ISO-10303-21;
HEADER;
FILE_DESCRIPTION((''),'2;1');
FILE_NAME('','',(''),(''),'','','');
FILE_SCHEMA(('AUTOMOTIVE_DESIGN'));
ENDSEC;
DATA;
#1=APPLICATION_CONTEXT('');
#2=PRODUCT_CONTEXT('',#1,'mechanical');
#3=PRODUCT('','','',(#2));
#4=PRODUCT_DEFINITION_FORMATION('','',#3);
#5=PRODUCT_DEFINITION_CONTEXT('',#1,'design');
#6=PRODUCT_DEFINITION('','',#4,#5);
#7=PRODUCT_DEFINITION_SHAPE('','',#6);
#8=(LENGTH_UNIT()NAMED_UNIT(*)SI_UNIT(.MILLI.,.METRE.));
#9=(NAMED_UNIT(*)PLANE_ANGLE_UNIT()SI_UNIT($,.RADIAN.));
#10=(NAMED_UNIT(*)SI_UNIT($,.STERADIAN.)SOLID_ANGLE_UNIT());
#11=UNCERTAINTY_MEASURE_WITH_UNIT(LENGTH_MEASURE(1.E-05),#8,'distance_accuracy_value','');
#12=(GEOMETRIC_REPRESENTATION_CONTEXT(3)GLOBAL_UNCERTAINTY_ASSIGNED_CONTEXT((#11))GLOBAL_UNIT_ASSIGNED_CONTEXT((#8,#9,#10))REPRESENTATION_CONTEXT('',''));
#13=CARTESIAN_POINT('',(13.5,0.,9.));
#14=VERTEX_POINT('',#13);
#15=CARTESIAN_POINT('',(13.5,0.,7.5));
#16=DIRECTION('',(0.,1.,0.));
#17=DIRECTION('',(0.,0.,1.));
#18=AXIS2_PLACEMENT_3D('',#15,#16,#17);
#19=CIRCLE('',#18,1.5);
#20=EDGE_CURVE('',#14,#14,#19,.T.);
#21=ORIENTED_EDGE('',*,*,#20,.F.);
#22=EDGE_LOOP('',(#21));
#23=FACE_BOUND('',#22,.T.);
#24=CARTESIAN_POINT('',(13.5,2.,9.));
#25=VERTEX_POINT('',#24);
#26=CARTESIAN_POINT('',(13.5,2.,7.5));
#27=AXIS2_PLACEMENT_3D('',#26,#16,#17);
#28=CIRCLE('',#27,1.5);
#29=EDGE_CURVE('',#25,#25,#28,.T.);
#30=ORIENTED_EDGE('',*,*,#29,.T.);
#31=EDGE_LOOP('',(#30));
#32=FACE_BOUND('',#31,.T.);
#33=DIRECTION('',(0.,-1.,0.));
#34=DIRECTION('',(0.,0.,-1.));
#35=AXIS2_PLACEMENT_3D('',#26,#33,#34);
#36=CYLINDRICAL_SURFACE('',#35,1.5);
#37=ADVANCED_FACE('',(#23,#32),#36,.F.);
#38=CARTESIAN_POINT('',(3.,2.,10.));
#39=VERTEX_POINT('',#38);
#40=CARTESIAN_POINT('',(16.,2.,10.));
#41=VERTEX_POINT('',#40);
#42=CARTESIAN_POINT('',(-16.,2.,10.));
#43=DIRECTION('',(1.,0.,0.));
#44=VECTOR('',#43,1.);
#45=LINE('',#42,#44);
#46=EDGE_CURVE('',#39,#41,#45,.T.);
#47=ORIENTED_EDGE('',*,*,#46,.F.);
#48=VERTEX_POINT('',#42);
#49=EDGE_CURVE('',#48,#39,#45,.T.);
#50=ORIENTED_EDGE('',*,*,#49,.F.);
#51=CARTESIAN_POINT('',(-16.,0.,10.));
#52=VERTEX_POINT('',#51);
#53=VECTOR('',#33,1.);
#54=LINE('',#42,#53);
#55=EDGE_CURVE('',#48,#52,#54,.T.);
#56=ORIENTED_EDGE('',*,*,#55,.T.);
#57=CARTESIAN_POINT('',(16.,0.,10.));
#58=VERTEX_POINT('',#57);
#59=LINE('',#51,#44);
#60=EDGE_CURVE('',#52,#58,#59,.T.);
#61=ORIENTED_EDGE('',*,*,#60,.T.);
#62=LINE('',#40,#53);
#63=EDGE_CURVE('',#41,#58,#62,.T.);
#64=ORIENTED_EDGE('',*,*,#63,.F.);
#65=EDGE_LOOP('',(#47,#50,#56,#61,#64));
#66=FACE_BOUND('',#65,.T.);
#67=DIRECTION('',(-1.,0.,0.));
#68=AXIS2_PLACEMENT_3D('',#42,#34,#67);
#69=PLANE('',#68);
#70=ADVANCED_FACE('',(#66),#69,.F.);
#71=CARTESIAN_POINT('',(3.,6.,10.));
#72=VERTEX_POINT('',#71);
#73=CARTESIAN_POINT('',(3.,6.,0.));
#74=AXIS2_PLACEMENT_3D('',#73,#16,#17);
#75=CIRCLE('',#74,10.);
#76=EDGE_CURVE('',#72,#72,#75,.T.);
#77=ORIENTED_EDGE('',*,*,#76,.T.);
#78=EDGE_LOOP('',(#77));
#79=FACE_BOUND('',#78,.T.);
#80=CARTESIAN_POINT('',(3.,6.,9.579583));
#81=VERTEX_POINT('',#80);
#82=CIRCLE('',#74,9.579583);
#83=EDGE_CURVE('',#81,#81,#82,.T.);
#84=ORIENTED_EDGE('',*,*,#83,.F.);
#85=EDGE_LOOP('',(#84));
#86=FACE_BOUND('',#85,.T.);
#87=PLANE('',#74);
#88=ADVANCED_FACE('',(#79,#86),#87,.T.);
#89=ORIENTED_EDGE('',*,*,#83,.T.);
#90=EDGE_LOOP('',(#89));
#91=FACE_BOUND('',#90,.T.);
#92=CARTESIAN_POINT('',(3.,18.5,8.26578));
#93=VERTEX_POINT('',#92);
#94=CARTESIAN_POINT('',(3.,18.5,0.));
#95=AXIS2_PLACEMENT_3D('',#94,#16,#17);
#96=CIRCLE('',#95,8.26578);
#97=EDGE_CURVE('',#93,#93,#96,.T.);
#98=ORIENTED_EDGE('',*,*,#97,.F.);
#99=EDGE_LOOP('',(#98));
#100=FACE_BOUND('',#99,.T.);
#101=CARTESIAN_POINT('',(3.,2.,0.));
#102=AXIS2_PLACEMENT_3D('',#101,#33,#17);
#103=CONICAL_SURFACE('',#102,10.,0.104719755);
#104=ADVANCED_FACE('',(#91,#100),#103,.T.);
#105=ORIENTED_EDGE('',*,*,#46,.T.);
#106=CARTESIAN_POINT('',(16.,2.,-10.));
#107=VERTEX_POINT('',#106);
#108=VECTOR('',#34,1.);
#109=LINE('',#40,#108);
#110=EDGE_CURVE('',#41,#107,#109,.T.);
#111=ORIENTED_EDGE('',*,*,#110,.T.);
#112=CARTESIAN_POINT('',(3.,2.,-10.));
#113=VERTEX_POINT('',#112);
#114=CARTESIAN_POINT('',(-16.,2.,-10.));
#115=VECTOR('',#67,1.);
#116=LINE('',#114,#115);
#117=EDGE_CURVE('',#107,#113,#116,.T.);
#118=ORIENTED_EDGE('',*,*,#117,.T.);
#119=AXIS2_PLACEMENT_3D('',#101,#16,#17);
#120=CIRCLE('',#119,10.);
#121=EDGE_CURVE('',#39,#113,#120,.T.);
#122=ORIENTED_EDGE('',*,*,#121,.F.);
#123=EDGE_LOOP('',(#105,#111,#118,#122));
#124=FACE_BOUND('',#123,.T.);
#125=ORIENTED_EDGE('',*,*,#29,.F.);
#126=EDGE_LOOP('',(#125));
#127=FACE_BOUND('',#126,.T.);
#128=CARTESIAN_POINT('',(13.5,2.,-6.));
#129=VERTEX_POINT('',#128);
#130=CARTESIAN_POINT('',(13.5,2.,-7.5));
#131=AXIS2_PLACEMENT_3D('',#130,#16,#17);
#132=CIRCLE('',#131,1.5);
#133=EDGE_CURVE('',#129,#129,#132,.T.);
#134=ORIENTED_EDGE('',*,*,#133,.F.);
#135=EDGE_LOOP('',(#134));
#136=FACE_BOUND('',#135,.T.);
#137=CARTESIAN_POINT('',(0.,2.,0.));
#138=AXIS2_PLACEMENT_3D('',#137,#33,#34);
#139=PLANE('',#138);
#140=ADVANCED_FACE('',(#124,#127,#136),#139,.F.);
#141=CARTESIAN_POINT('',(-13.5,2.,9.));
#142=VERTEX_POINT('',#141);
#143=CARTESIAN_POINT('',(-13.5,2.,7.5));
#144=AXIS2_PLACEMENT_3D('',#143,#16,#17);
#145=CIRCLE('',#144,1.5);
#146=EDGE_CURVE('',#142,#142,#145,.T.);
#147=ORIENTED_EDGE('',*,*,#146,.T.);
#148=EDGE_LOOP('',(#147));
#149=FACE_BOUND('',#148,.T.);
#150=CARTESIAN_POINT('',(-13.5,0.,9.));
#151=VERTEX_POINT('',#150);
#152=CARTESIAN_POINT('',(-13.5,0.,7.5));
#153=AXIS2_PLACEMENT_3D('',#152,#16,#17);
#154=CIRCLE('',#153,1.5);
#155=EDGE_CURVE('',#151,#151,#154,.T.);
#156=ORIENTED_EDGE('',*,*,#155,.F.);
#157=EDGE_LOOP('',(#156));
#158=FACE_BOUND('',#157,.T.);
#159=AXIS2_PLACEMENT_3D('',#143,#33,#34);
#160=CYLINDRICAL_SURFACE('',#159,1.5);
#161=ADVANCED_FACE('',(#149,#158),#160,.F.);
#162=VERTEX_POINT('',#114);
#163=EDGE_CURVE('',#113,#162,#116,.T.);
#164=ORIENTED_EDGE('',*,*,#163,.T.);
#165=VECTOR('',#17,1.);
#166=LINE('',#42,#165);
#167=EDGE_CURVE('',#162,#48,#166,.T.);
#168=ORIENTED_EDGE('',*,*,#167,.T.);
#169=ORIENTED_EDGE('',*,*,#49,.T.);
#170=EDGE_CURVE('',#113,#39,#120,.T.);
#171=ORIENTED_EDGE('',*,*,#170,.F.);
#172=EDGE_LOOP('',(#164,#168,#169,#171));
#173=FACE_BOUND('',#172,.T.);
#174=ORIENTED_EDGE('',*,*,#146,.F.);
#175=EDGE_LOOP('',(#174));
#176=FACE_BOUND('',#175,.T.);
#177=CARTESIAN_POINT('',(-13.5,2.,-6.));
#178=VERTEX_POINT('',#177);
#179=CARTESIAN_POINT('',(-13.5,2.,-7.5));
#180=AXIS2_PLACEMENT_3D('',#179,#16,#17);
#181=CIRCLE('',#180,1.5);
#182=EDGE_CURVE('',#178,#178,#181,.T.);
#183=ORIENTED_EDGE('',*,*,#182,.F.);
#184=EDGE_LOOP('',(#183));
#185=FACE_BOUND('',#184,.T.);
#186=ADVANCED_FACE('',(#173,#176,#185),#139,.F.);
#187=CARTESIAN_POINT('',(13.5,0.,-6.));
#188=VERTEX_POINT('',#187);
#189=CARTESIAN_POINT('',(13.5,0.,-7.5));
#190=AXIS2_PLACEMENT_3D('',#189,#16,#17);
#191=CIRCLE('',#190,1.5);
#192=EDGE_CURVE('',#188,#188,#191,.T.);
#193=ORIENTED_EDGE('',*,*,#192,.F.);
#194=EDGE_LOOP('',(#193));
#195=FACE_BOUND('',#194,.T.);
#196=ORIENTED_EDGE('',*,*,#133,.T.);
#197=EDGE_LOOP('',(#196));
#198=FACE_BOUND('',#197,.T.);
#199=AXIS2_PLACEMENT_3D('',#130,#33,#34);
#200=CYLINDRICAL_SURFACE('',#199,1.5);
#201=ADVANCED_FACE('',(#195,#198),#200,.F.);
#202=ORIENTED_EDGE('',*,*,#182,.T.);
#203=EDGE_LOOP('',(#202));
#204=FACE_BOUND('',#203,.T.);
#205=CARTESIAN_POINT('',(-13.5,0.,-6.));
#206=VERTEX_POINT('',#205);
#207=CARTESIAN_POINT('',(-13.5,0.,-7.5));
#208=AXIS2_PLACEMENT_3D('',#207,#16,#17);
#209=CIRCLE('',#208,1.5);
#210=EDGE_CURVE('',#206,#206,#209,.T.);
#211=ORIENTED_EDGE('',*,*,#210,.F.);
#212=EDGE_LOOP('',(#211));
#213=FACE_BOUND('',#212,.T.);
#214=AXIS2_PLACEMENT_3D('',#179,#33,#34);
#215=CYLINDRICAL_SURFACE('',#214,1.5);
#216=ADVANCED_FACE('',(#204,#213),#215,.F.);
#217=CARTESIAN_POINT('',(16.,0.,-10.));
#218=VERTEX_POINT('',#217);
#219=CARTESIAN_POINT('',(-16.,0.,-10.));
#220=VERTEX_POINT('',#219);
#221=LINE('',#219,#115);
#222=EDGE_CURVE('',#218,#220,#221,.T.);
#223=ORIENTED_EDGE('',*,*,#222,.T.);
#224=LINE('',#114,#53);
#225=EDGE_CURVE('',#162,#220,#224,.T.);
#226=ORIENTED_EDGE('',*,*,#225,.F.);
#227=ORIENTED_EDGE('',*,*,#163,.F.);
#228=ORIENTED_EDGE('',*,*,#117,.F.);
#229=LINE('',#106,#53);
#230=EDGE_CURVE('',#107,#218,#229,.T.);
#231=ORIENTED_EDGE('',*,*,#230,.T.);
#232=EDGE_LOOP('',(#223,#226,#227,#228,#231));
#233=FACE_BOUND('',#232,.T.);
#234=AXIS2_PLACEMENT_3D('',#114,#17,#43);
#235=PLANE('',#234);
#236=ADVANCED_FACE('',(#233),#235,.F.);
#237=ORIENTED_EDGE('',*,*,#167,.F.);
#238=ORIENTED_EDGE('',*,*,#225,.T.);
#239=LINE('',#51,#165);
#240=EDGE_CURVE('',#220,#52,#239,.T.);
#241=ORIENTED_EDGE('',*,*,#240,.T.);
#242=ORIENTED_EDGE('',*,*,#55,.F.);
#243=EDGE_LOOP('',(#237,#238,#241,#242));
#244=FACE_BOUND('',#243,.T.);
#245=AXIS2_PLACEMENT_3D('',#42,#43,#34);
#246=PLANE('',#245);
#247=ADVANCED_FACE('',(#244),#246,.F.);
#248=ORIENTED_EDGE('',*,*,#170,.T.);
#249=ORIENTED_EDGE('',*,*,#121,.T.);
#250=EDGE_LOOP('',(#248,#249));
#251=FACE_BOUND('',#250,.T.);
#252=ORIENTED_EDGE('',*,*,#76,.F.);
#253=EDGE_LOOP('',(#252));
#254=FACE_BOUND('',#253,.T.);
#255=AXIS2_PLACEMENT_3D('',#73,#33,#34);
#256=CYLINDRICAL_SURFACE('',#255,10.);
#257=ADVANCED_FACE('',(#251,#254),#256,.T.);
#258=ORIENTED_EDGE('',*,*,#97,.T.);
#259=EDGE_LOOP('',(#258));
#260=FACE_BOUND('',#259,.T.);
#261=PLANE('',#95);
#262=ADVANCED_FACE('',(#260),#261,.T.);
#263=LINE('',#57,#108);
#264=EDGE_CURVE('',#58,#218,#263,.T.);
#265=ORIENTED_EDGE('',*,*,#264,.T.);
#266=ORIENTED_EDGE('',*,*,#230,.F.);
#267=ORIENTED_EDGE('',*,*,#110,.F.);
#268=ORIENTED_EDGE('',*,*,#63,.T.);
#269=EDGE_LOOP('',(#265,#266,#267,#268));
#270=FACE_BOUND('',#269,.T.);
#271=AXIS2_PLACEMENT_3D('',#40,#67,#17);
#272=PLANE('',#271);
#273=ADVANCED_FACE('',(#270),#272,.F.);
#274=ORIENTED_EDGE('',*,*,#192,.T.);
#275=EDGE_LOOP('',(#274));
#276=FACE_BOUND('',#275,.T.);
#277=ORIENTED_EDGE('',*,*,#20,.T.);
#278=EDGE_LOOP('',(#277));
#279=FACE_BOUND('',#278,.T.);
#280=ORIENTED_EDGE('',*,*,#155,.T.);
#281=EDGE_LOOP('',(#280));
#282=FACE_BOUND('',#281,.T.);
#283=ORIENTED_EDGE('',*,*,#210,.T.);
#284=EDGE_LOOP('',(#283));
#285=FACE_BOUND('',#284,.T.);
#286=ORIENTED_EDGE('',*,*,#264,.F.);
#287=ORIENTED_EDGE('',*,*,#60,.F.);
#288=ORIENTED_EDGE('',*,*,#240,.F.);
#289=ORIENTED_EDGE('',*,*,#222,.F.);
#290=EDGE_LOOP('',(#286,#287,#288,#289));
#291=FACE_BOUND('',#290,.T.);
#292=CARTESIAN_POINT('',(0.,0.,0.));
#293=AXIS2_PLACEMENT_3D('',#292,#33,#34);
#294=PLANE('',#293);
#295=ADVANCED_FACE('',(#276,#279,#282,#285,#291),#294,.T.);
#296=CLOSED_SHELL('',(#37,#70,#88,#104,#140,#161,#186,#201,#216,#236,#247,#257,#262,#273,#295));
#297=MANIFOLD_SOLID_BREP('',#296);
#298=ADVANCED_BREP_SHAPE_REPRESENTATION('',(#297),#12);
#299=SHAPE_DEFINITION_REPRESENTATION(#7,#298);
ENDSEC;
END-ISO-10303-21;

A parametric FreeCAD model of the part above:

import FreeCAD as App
import Part
import Sketcher

V = App.Vector


def add_polygon(sketch, points):
    """Adds a closed chain of lines whose ends are joined by coincident constraints."""
    first, n = sketch.GeometryCount, len(points)
    for a, b in zip(points, points[1:] + points[:1]):
        sketch.addGeometry(Part.LineSegment(App.Vector(*a, 0), App.Vector(*b, 0)), False)
    for i in range(n):
        sketch.addConstraint(Sketcher.Constraint("Coincident", first + i, 2, first + (i + 1) % n, 1))

doc = App.newDocument("Part")
params = doc.addObject("Spreadsheet::Sheet", "Params")
for row, (alias, value) in enumerate([
    ("sketch1_diameter", "3 mm"),
    ("sketch1_width", "32 mm"),
    ("sketch1_height", "20 mm"),
    ("pad1_length", "2 mm"),
    ("sketch2_diameter", "20 mm"),
    ("pad2_length", "16.5 mm"),
    ("pad2_taper", "-6 deg"),
    ("sketch3_diameter", "20 mm"),
    ("pad3_length", "4 mm"),
], start=1):
    params.set(f"A{row}", alias)
    params.set(f"B{row}", "=" + value)
    params.setAlias(f"B{row}", alias)

body = doc.addObject("PartDesign::Body", "Body")

# Sketch on XZ plane
sketch1 = body.newObject("Sketcher::SketchObject", "Sketch")
sketch1.AttachmentSupport = (doc.getObject("XZ_Plane"), [""])
sketch1.MapMode = "FlatFace"
add_polygon(sketch1, [(-16, -10), (-16, 10), (16, 10), (16, -10)])  # lines 0-3
sketch1.addGeometry(Part.Circle(V(-13.5, 7.5, 0), V(0, 0, 1), 1.5), False)  # 4
sketch1.addGeometry(Part.Circle(V(13.5, 7.5, 0), V(0, 0, 1), 1.5), False)  # 5
sketch1.addGeometry(Part.Circle(V(-13.5, -7.5, 0), V(0, 0, 1), 1.5), False)  # 6
sketch1.addGeometry(Part.Circle(V(13.5, -7.5, 0), V(0, 0, 1), 1.5), False)  # 7
sketch1.addConstraint([
    Sketcher.Constraint("Vertical", 0),
    Sketcher.Constraint("Horizontal", 1),
    Sketcher.Constraint("Vertical", 2),
    Sketcher.Constraint("Horizontal", 3),
    Sketcher.Constraint("Equal", 4, 5),
    Sketcher.Constraint("Equal", 5, 6),
    Sketcher.Constraint("Equal", 6, 7),
    Sketcher.Constraint("Symmetric", 5, 3, 6, 3, -1, 1),
    Sketcher.Constraint("Symmetric", 4, 3, 7, 3, -1, 1),
    Sketcher.Constraint("Symmetric", 0, 2, 2, 2, -1, 1),
    Sketcher.Constraint("Symmetric", 4, 3, 5, 3, -2),
    Sketcher.Constraint("Diameter", 4, 3.0),
    Sketcher.Constraint("DistanceX", 1, 1, 1, 2, 32.0),
    Sketcher.Constraint("DistanceY", 0, 1, 0, 2, 20.0),
    Sketcher.Constraint("DistanceX", 4, 3, 5, 3, 27.0),
    Sketcher.Constraint("DistanceY", 6, 3, 4, 3, 15.0),
])
sketch1.setExpression("Constraints[15]", "Params.sketch1_diameter")
sketch1.setExpression("Constraints[16]", "Params.sketch1_width")
sketch1.setExpression("Constraints[17]", "Params.sketch1_height")
pad1 = body.newObject("PartDesign::Pad", "Pad")
pad1.Profile = sketch1
pad1.setExpression("Length", "Params.pad1_length")
pad1.Reversed = True

# Sketch on XZ plane
sketch2 = body.newObject("Sketcher::SketchObject", "Sketch001")
sketch2.AttachmentSupport = (doc.getObject("XZ_Plane"), [""])
sketch2.MapMode = "FlatFace"
sketch2.AttachmentOffset = App.Placement(V(0, 0, -2), App.Rotation())
sketch2.addGeometry(Part.Circle(V(3, 0, 0), V(0, 0, 1), 10), False)
sketch2.addConstraint([
    Sketcher.Constraint("PointOnObject", 0, 3, -1),
    Sketcher.Constraint("Diameter", 0, 20.0),
    Sketcher.Constraint("DistanceX", -1, 1, 0, 3, 3.0),
])
sketch2.setExpression("Constraints[1]", "Params.sketch2_diameter")
pad2 = body.newObject("PartDesign::Pad", "Pad001")
pad2.Profile = sketch2
pad2.setExpression("Length", "Params.pad2_length")
pad2.Reversed = True
pad2.setExpression("TaperAngle", "Params.pad2_taper")

# Sketch on XZ plane
sketch3 = body.newObject("Sketcher::SketchObject", "Sketch002")
sketch3.AttachmentSupport = (doc.getObject("XZ_Plane"), [""])
sketch3.MapMode = "FlatFace"
sketch3.AttachmentOffset = App.Placement(V(0, 0, -2), App.Rotation())
sketch3.addGeometry(Part.Circle(V(3, 0, 0), V(0, 0, 1), 10), False)
sketch3.addConstraint([
    Sketcher.Constraint("PointOnObject", 0, 3, -1),
    Sketcher.Constraint("Diameter", 0, 20.0),
    Sketcher.Constraint("DistanceX", -1, 1, 0, 3, 3.0),
])
sketch3.setExpression("Constraints[1]", "Params.sketch3_diameter")
pad3 = body.newObject("PartDesign::Pad", "Pad002")
pad3.Profile = sketch3
pad3.setExpression("Length", "Params.pad3_length")
pad3.Reversed = True

doc.recompute()
